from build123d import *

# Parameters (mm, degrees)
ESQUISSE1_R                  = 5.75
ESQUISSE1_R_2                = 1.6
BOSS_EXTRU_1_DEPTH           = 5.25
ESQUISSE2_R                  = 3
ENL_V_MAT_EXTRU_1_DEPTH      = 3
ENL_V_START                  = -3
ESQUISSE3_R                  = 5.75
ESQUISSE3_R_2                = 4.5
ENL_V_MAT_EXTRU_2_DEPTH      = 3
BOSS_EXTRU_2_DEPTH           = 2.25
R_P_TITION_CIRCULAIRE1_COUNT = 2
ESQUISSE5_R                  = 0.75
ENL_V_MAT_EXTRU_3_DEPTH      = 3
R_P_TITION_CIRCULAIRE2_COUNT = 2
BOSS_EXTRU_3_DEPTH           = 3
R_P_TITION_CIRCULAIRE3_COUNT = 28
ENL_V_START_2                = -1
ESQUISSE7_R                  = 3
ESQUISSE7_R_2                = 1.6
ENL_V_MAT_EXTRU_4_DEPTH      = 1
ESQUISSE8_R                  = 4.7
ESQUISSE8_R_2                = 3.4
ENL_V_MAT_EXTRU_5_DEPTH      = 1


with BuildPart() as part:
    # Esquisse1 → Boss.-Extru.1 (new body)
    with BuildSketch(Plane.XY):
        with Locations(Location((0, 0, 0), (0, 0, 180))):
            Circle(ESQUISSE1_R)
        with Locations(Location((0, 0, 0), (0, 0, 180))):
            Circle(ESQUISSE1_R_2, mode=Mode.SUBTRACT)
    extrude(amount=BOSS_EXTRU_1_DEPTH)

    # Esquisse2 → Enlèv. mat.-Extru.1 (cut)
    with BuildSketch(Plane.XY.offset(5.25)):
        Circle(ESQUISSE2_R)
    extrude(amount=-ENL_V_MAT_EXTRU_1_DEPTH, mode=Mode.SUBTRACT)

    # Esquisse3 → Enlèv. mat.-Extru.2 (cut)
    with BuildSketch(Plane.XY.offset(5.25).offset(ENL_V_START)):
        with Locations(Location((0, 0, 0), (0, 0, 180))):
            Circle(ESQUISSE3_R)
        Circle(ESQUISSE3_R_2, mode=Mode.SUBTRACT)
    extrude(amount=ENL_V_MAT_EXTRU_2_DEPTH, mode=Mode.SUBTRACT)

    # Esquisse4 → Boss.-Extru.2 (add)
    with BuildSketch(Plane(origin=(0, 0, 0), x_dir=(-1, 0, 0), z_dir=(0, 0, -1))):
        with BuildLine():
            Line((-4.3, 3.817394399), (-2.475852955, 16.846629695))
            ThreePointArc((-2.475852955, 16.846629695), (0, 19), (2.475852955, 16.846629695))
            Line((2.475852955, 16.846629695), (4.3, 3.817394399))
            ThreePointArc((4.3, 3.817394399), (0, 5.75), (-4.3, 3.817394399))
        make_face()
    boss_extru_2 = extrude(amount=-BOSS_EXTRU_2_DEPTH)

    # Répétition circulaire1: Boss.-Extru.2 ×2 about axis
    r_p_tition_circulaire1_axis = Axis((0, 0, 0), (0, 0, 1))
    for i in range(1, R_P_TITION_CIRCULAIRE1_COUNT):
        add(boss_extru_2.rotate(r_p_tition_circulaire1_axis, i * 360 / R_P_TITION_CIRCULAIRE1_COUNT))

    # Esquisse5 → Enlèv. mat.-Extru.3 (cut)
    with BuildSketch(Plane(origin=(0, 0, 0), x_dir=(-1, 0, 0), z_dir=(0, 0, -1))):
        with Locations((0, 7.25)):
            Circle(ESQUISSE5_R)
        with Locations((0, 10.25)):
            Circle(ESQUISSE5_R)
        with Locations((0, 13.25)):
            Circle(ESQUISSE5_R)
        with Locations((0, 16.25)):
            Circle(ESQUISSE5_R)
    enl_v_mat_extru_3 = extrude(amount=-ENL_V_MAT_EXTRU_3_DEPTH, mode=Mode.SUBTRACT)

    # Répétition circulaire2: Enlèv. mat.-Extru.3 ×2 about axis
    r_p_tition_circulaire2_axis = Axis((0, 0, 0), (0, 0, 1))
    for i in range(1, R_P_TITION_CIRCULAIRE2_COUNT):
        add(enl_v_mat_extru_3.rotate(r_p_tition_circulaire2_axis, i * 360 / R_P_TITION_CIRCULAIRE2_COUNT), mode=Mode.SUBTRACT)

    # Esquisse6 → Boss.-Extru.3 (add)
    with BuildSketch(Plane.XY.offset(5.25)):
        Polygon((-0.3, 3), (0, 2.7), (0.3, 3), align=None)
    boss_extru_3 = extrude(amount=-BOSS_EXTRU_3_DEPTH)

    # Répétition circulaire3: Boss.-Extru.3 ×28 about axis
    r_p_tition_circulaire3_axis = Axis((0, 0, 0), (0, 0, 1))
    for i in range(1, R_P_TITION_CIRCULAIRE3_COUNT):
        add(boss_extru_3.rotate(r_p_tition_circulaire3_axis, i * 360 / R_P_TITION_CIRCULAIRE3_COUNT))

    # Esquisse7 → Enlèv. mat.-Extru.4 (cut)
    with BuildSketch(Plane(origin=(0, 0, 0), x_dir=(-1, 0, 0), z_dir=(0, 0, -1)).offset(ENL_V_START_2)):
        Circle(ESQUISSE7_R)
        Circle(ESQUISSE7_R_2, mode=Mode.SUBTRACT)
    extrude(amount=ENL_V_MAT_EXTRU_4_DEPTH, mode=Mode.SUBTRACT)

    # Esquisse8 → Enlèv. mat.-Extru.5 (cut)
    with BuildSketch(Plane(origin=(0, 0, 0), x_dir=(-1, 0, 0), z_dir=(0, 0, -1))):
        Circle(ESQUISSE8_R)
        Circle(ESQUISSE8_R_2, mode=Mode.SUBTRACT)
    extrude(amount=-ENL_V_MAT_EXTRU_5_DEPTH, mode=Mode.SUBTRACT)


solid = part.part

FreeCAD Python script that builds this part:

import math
import FreeCAD as App
import Part
import Sketcher
from FreeCAD import Vector


def add_polygon(sketch, points):
    """Adds a closed chain of lines whose ends are joined by coincident constraints."""
    first, n = sketch.GeometryCount, len(points)
    for a, b in zip(points, points[1:] + points[:1]):
        sketch.addGeometry(Part.LineSegment(App.Vector(*a, 0), App.Vector(*b, 0)), False)
    for i in range(n):
        sketch.addConstraint(Sketcher.Constraint("Coincident", first + i, 2, first + (i + 1) % n, 1))

doc = App.newDocument("Part")
body = doc.addObject("PartDesign::Body", "Body")

# Sketch on XY plane
sketch1 = doc.addObject("Sketcher::SketchObject", "Sketch")
body.addObject(sketch1)
sketch1.AttachmentSupport = (doc.XY_Plane, [""])
sketch1.MapMode = "FlatFace"
sketch1.addGeometry([
    Part.Circle(Vector(0, 0, 0), Vector(0, 0, 1), 5.75),
    Part.Circle(Vector(0, 0, 0), Vector(0, 0, 1), 1.6),
], False)
sketch1.addConstraint([
    Sketcher.Constraint("Coincident", 0, 3, -1, 1),
    Sketcher.Constraint("Coincident", 1, 3, -1, 1),
    Sketcher.Constraint("Diameter", 0, 11.5),
    Sketcher.Constraint("Diameter", 1, 3.2),
])
pad1 = doc.addObject("PartDesign::Pad", "Pad")
body.addObject(pad1)
pad1.Profile = sketch1
pad1.Length = 5.25

# Sketch on XY plane
sketch2 = doc.addObject("Sketcher::SketchObject", "Sketch001")
body.addObject(sketch2)
sketch2.AttachmentSupport = (doc.XY_Plane, [""])
sketch2.MapMode = "FlatFace"
sketch2.AttachmentOffset = App.Placement(Vector(0, 0, 5.25), App.Rotation())
sketch2.addGeometry(Part.Circle(Vector(0, 0, 0), Vector(0, 0, 1), 3), False)
sketch2.addConstraint([
    Sketcher.Constraint("Coincident", 0, 3, -1, 1),
    Sketcher.Constraint("Diameter", 0, 6.0),
])
pocket1 = doc.addObject("PartDesign::Pocket", "Pocket")
body.addObject(pocket1)
pocket1.Profile = sketch2
pocket1.Length = 3

# Sketch on XY plane
sketch3 = doc.addObject("Sketcher::SketchObject", "Sketch002")
body.addObject(sketch3)
sketch3.AttachmentSupport = (doc.XY_Plane, [""])
sketch3.MapMode = "FlatFace"
sketch3.AttachmentOffset = App.Placement(Vector(0, 0, 2.25), App.Rotation())
sketch3.addGeometry([
    Part.Circle(Vector(0, 0, 0), Vector(0, 0, 1), 5.75),
    Part.Circle(Vector(0, 0, 0), Vector(0, 0, 1), 4.5),
], False)
sketch3.addConstraint([
    Sketcher.Constraint("Coincident", 0, 3, -1, 1),
    Sketcher.Constraint("Coincident", 1, 3, -1, 1),
    Sketcher.Constraint("Diameter", 1, 9.0),
    Sketcher.Constraint("Diameter", 0, 11.5),
])
pocket2 = doc.addObject("PartDesign::Pocket", "Pocket001")
body.addObject(pocket2)
pocket2.Profile = sketch3
pocket2.Length = 3
pocket2.Reversed = True

# Sketch on XY plane
sketch4 = doc.addObject("Sketcher::SketchObject", "Sketch003")
body.addObject(sketch4)
sketch4.AttachmentSupport = (doc.XY_Plane, [""])
sketch4.MapMode = "FlatFace"
sketch4.addGeometry([
    Part.LineSegment(Vector(2.475853, 16.84663, 0), Vector(4.3, 3.817394, 0)),
    Part.ArcOfCircle(Part.Circle(Vector(0, 0, 0), Vector(0, 0, 1), 5.75), math.radians(41.597584), math.radians(138.402416)),
    Part.LineSegment(Vector(-4.3, 3.817394, 0), Vector(-2.475853, 16.84663, 0)),
    Part.ArcOfCircle(Part.Circle(Vector(0, 16.5, 0), Vector(0, 0, 1), 2.5), math.radians(7.969844), math.radians(172.030156)),
], False)
sketch4.addConstraint([
    Sketcher.Constraint("Coincident", 0, 2, 1, 1),
    Sketcher.Constraint("Coincident", 1, 2, 2, 1),
    Sketcher.Constraint("Tangent", 2, 2, 3, 2),
    Sketcher.Constraint("Tangent", 3, 1, 0, 1),
    Sketcher.Constraint("Coincident", 1, 3, -1, 1),
    Sketcher.Constraint("Symmetric", 2, 2, 3, 1, -2),
    Sketcher.Constraint("Radius", 3, 2.5),
    Sketcher.Constraint("Radius", 1, 5.75),
    Sketcher.Constraint("DistanceY", -1, 1, 3, 3, 16.5),
    Sketcher.Constraint("DistanceX", -1, 1, 0, 2, 4.3),
])
pad2 = doc.addObject("PartDesign::Pad", "Pad001")
body.addObject(pad2)
pad2.Profile = sketch4
pad2.Length = 2.25
doc.recompute()

polarpattern = doc.addObject("PartDesign::PolarPattern", "PolarPattern")
body.addObject(polarpattern)
polarpattern.Originals = [pad2]
polarpattern.Axis = (doc.Z_Axis, [""])
polarpattern.Angle = 360
polarpattern.Occurrences = 2
body.Tip = polarpattern

# Sketch on XY plane
sketch5 = doc.addObject("Sketcher::SketchObject", "Sketch004")
body.addObject(sketch5)
sketch5.AttachmentSupport = (doc.XY_Plane, [""])
sketch5.MapMode = "FlatFace"
sketch5.addGeometry([
    Part.Circle(Vector(0, 7.25, 0), Vector(0, 0, 1), 0.75),
    Part.Circle(Vector(0, 10.25, 0), Vector(0, 0, 1), 0.75),
    Part.Circle(Vector(0, 13.25, 0), Vector(0, 0, 1), 0.75),
    Part.Circle(Vector(0, 16.25, 0), Vector(0, 0, 1), 0.75),
], False)
sketch5.addConstraint([
    Sketcher.Constraint("Equal", 0, 1),
    Sketcher.Constraint("Equal", 1, 2),
    Sketcher.Constraint("Equal", 2, 3),
    Sketcher.Constraint("PointOnObject", 0, 3, -2),
    Sketcher.Constraint("PointOnObject", 1, 3, -2),
    Sketcher.Constraint("PointOnObject", 2, 3, -2),
    Sketcher.Constraint("PointOnObject", 3, 3, -2),
    Sketcher.Constraint("Diameter", 0, 1.5),
    Sketcher.Constraint("DistanceY", 0, 3, 1, 3, 3.0),
    Sketcher.Constraint("DistanceY", 1, 3, 2, 3, 3.0),
    Sketcher.Constraint("DistanceY", 2, 3, 3, 3, 3.0),
    Sketcher.Constraint("DistanceY", -1, 1, 0, 3, 7.25),
])
pocket3 = doc.addObject("PartDesign::Pocket", "Pocket002")
body.addObject(pocket3)
pocket3.Profile = sketch5
pocket3.Length = 3
pocket3.Reversed = True
doc.recompute()

polarpattern2 = doc.addObject("PartDesign::PolarPattern", "PolarPattern001")
body.addObject(polarpattern2)
polarpattern2.Originals = [pocket3]
polarpattern2.Axis = (doc.Z_Axis, [""])
polarpattern2.Angle = 360
polarpattern2.Occurrences = 2
body.Tip = polarpattern2

# Sketch on XY plane
sketch6 = doc.addObject("Sketcher::SketchObject", "Sketch005")
body.addObject(sketch6)
sketch6.AttachmentSupport = (doc.XY_Plane, [""])
sketch6.MapMode = "FlatFace"
sketch6.AttachmentOffset = App.Placement(Vector(0, 0, 5.25), App.Rotation())
add_polygon(sketch6, [(-0.3, 3), (0, 2.7), (0.3, 3)])  # lines 0-2
sketch6.addConstraint([
    Sketcher.Constraint("Horizontal", 2),
    Sketcher.Constraint("PointOnObject", 0, 2, -2),
    Sketcher.Constraint("Perpendicular", 0, 1),
    Sketcher.Constraint("Equal", 0, 1),
    Sketcher.Constraint("DistanceX", 2, 2, 2, 1, 0.6),
    Sketcher.Constraint("DistanceY", -1, 1, 1, 2, 3.0),
])
pad3 = doc.addObject("PartDesign::Pad", "Pad002")
body.addObject(pad3)
pad3.Profile = sketch6
pad3.Length = 3
pad3.Reversed = True
doc.recompute()

polarpattern3 = doc.addObject("PartDesign::PolarPattern", "PolarPattern002")
body.addObject(polarpattern3)
polarpattern3.Originals = [pad3]
polarpattern3.Axis = (doc.Z_Axis, [""])
polarpattern3.Angle = 360
polarpattern3.Occurrences = 28
body.Tip = polarpattern3

# Sketch on XY plane
sketch7 = doc.addObject("Sketcher::SketchObject", "Sketch006")
body.addObject(sketch7)
sketch7.AttachmentSupport = (doc.XY_Plane, [""])
sketch7.MapMode = "FlatFace"
sketch7.AttachmentOffset = App.Placement(Vector(0, 0, 1), App.Rotation())
sketch7.addGeometry([
    Part.Circle(Vector(0, 0, 0), Vector(0, 0, 1), 3),
    Part.Circle(Vector(0, 0, 0), Vector(0, 0, 1), 1.6),
], False)
sketch7.addConstraint([
    Sketcher.Constraint("Coincident", 0, 3, -1, 1),
    Sketcher.Constraint("Coincident", 1, 3, -1, 1),
    Sketcher.Constraint("Diameter", 0, 6.0),
    Sketcher.Constraint("Diameter", 1, 3.2),
])
pocket4 = doc.addObject("PartDesign::Pocket", "Pocket003")
body.addObject(pocket4)
pocket4.Profile = sketch7
pocket4.Length = 1

# Sketch on XY plane
sketch8 = doc.addObject("Sketcher::SketchObject", "Sketch007")
body.addObject(sketch8)
sketch8.AttachmentSupport = (doc.XY_Plane, [""])
sketch8.MapMode = "FlatFace"
sketch8.addGeometry([
    Part.Circle(Vector(0, 0, 0), Vector(0, 0, 1), 4.7),
    Part.Circle(Vector(0, 0, 0), Vector(0, 0, 1), 3.4),
], False)
sketch8.addConstraint([
    Sketcher.Constraint("Coincident", 0, 3, -1, 1),
    Sketcher.Constraint("Coincident", 1, 3, -1, 1),
    Sketcher.Constraint("Diameter", 0, 9.4),
    Sketcher.Constraint("Diameter", 1, 6.8),
])
pocket5 = doc.addObject("PartDesign::Pocket", "Pocket004")
body.addObject(pocket5)
pocket5.Profile = sketch8
pocket5.Length = 1
pocket5.Reversed = True

doc.recompute()
